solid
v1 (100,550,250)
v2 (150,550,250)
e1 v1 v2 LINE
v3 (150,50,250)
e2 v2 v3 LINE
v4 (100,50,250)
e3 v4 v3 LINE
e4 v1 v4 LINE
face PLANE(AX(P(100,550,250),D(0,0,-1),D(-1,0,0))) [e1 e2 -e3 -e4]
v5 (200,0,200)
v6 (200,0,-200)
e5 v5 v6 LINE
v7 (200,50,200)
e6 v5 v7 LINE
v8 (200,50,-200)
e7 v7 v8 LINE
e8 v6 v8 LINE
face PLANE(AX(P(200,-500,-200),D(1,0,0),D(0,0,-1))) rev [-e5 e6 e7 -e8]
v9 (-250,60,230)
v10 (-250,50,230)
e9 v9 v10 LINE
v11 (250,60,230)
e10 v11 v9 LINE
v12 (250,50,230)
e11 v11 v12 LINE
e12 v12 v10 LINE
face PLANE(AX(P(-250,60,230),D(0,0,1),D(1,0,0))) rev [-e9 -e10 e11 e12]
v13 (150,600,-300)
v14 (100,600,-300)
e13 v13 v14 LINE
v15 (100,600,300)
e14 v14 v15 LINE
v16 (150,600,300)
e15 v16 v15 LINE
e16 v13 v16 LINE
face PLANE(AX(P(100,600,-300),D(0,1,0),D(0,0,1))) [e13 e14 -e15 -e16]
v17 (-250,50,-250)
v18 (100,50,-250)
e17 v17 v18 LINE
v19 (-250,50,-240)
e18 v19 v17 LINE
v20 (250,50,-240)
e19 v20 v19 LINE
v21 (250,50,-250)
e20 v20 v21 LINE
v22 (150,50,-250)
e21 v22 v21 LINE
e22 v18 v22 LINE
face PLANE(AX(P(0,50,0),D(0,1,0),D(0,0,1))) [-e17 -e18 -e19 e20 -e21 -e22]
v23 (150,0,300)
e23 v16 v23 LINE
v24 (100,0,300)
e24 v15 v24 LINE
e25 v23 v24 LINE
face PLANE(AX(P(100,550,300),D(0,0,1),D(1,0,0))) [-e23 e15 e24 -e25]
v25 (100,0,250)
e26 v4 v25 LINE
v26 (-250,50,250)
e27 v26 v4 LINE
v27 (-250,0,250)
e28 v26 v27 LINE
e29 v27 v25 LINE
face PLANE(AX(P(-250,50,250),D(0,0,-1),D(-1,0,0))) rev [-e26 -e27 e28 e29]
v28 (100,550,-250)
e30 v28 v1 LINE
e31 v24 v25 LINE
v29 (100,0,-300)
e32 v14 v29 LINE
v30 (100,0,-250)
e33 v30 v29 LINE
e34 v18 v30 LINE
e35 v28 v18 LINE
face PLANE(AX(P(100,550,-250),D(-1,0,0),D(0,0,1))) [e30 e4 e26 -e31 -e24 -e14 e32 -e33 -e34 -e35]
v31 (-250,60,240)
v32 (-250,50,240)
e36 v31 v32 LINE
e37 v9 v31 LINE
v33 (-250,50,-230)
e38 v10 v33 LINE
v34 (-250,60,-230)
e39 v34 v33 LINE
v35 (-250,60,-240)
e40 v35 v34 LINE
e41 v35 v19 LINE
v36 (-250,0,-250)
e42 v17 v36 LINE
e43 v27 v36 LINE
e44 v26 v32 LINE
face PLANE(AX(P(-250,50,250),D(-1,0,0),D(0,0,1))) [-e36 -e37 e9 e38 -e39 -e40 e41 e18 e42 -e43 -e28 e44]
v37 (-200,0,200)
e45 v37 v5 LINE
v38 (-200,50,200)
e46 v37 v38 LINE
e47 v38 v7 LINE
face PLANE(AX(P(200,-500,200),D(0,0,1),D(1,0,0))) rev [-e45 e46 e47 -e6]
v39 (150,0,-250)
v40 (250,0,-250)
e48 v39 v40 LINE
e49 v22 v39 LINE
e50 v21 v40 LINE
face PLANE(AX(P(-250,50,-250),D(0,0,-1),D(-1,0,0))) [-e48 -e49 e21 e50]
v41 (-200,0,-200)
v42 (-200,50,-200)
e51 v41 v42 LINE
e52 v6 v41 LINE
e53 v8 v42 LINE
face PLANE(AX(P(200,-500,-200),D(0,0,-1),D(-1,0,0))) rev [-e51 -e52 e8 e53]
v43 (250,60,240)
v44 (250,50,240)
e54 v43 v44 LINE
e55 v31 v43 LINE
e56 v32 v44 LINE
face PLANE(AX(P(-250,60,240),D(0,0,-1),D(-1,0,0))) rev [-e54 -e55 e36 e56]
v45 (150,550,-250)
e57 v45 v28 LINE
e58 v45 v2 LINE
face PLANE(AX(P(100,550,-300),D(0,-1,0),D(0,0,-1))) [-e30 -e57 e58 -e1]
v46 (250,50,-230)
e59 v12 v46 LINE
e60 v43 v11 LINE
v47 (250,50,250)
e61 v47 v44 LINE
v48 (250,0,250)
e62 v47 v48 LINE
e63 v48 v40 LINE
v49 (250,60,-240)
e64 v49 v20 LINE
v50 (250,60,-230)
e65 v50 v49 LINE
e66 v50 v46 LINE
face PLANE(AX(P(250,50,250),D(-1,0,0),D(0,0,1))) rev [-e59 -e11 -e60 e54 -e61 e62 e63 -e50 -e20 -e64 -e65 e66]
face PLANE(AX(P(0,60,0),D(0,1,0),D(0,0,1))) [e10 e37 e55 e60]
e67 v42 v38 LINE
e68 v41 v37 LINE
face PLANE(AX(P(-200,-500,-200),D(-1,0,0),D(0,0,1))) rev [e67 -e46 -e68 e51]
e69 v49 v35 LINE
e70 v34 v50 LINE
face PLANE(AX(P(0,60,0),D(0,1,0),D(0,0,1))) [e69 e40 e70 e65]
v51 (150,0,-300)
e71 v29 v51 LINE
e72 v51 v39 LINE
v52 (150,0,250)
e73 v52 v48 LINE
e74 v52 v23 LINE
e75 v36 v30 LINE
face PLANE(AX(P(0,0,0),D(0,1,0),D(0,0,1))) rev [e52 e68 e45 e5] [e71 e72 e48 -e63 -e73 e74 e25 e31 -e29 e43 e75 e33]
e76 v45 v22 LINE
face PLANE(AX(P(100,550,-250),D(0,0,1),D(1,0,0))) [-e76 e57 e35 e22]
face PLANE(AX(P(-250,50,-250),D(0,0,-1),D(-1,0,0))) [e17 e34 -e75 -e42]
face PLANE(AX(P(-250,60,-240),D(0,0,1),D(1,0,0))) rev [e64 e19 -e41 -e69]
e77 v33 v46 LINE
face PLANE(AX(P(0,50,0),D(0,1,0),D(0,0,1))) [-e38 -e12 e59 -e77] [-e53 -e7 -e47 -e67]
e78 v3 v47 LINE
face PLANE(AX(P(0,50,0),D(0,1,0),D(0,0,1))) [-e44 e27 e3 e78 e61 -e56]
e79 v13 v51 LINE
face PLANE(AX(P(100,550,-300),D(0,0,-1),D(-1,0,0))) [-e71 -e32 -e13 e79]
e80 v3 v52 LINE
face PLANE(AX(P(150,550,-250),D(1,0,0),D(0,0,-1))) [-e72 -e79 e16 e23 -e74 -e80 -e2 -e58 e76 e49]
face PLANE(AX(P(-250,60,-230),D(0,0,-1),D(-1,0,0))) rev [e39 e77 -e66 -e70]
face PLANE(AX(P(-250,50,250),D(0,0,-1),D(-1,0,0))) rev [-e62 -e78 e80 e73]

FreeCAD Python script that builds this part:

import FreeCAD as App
import Part
import Sketcher

V = App.Vector
Q = App.Units.Quantity

doc = App.newDocument("Part")
body = doc.addObject("PartDesign::Body", "Body")

# Sketch on XZ plane
sketch1 = doc.addObject("Sketcher::SketchObject", "Sketch")
body.addObject(sketch1)
sketch1.AttachmentSupport = (doc.XZ_Plane, [""])
sketch1.MapMode = "FlatFace"
sketch1.addGeometry(Part.LineSegment(V(-250, -250, 0), V(-250, 250, 0)), False)
sketch1.addGeometry(Part.LineSegment(V(-250, 250, 0), V(250, 250, 0)), False)
sketch1.addGeometry(Part.LineSegment(V(250, 250, 0), V(250, -250, 0)), False)
sketch1.addGeometry(Part.LineSegment(V(250, -250, 0), V(-250, -250, 0)), False)
sketch1.addConstraint(Sketcher.Constraint("Coincident", 0, 2, 1, 1))
sketch1.addConstraint(Sketcher.Constraint("Coincident", 1, 2, 2, 1))
sketch1.addConstraint(Sketcher.Constraint("Coincident", 2, 2, 3, 1))
sketch1.addConstraint(Sketcher.Constraint("Coincident", 3, 2, 0, 1))
sketch1.addConstraint(Sketcher.Constraint("Vertical", 0))
sketch1.addConstraint(Sketcher.Constraint("Horizontal", 1))
sketch1.addConstraint(Sketcher.Constraint("Vertical", 2))
sketch1.addConstraint(Sketcher.Constraint("Horizontal", 3))
sketch1.addConstraint(Sketcher.Constraint("Symmetric", 0, 2, 2, 2, -1, 1))
sketch1.addConstraint(Sketcher.Constraint("Equal", 3, 0))
sketch1.addConstraint(Sketcher.Constraint("DistanceX", 1, 1, 1, 2, Q("500 mm")))
pad1 = doc.addObject("PartDesign::Pad", "Pad")
body.addObject(pad1)
pad1.Profile = sketch1
pad1.Length = 50
pad1.Reversed = True

# Sketch on XZ plane
sketch2 = doc.addObject("Sketcher::SketchObject", "Sketch001")
body.addObject(sketch2)
sketch2.AttachmentSupport = (doc.XZ_Plane, [""])
sketch2.MapMode = "FlatFace"
sketch2.AttachmentOffset = App.Placement(V(0, 0, -50), App.Rotation())
sketch2.addGeometry(Part.LineSegment(V(-200, -200, 0), V(-200, 200, 0)), False)
sketch2.addGeometry(Part.LineSegment(V(-200, 200, 0), V(200, 200, 0)), False)
sketch2.addGeometry(Part.LineSegment(V(200, 200, 0), V(200, -200, 0)), False)
sketch2.addGeometry(Part.LineSegment(V(200, -200, 0), V(-200, -200, 0)), False)
sketch2.addConstraint(Sketcher.Constraint("Coincident", 0, 2, 1, 1))
sketch2.addConstraint(Sketcher.Constraint("Coincident", 1, 2, 2, 1))
sketch2.addConstraint(Sketcher.Constraint("Coincident", 2, 2, 3, 1))
sketch2.addConstraint(Sketcher.Constraint("Coincident", 3, 2, 0, 1))
sketch2.addConstraint(Sketcher.Constraint("Vertical", 0))
sketch2.addConstraint(Sketcher.Constraint("Horizontal", 1))
sketch2.addConstraint(Sketcher.Constraint("Vertical", 2))
sketch2.addConstraint(Sketcher.Constraint("Horizontal", 3))
sketch2.addConstraint(Sketcher.Constraint("Symmetric", 0, 2, 2, 2, -1, 1))
sketch2.addConstraint(Sketcher.Constraint("Equal", 3, 0))
sketch2.addConstraint(Sketcher.Constraint("DistanceX", 1, 1, 1, 2, Q("400 mm")))
pocket1 = doc.addObject("PartDesign::Pocket", "Pocket")
body.addObject(pocket1)
pocket1.Profile = sketch2
pocket1.Length = 550
pocket1.Reversed = True

# Sketch on XZ plane
sketch3 = doc.addObject("Sketcher::SketchObject", "Sketch002")
body.addObject(sketch3)
sketch3.AttachmentSupport = (doc.XZ_Plane, [""])
sketch3.MapMode = "FlatFace"
sketch3.AttachmentOffset = App.Placement(V(0, 0, -50), App.Rotation())
sketch3.addGeometry(Part.LineSegment(V(-250, -240, 0), V(-250, -230, 0)), False)
sketch3.addGeometry(Part.LineSegment(V(-250, -230, 0), V(250, -230, 0)), False)
sketch3.addGeometry(Part.LineSegment(V(250, -230, 0), V(250, -240, 0)), False)
sketch3.addGeometry(Part.LineSegment(V(250, -240, 0), V(-250, -240, 0)), False)
sketch3.addGeometry(Part.LineSegment(V(-250, 230, 0), V(-250, 240, 0)), False)
sketch3.addGeometry(Part.LineSegment(V(-250, 240, 0), V(250, 240, 0)), False)
sketch3.addGeometry(Part.LineSegment(V(250, 240, 0), V(250, 230, 0)), False)
sketch3.addGeometry(Part.LineSegment(V(250, 230, 0), V(-250, 230, 0)), False)
sketch3.addConstraint(Sketcher.Constraint("Coincident", 0, 2, 1, 1))
sketch3.addConstraint(Sketcher.Constraint("Coincident", 1, 2, 2, 1))
sketch3.addConstraint(Sketcher.Constraint("Coincident", 2, 2, 3, 1))
sketch3.addConstraint(Sketcher.Constraint("Coincident", 3, 2, 0, 1))
sketch3.addConstraint(Sketcher.Constraint("Coincident", 4, 2, 5, 1))
sketch3.addConstraint(Sketcher.Constraint("Coincident", 5, 2, 6, 1))
sketch3.addConstraint(Sketcher.Constraint("Coincident", 6, 2, 7, 1))
sketch3.addConstraint(Sketcher.Constraint("Coincident", 7, 2, 4, 1))
sketch3.addConstraint(Sketcher.Constraint("Vertical", 0))
sketch3.addConstraint(Sketcher.Constraint("Horizontal", 1))
sketch3.addConstraint(Sketcher.Constraint("Vertical", 2))
sketch3.addConstraint(Sketcher.Constraint("Horizontal", 3))
sketch3.addConstraint(Sketcher.Constraint("Vertical", 4))
sketch3.addConstraint(Sketcher.Constraint("Horizontal", 5))
sketch3.addConstraint(Sketcher.Constraint("Vertical", 6))
sketch3.addConstraint(Sketcher.Constraint("Horizontal", 7))
sketch3.addConstraint(Sketcher.Constraint("Symmetric", 2, 2, 4, 2, -1, 1))
sketch3.addConstraint(Sketcher.Constraint("Symmetric", 0, 2, 6, 2, -1, 1))
sketch3.addConstraint(Sketcher.Constraint("Vertical", 3, 2, 4, 2))
sketch3.addConstraint(Sketcher.Constraint("DistanceX", 1, 1, 1, 2, Q("500 mm")))
sketch3.addConstraint(Sketcher.Constraint("DistanceY", 0, 1, 0, 2, Q("10 mm")))
sketch3.addConstraint(Sketcher.Constraint("DistanceY", 0, 2, -1, 1, Q("230 mm")))
pad2 = doc.addObject("PartDesign::Pad", "Pad001")
body.addObject(pad2)
pad2.Profile = sketch3
pad2.Length = 10
pad2.Reversed = True

# Sketch on XZ plane
sketch4 = doc.addObject("Sketcher::SketchObject", "Sketch003")
body.addObject(sketch4)
sketch4.AttachmentSupport = (doc.XZ_Plane, [""])
sketch4.MapMode = "FlatFace"
sketch4.addGeometry(Part.LineSegment(V(100, -250, 0), V(100, -300, 0)), False)
sketch4.addGeometry(Part.LineSegment(V(100, -300, 0), V(150, -300, 0)), False)
sketch4.addGeometry(Part.LineSegment(V(150, -300, 0), V(150, -250, 0)), False)
sketch4.addGeometry(Part.LineSegment(V(150, -250, 0), V(100, -250, 0)), False)
sketch4.addGeometry(Part.LineSegment(V(100, 300, 0), V(100, 250, 0)), False)
sketch4.addGeometry(Part.LineSegment(V(100, 250, 0), V(150, 250, 0)), False)
sketch4.addGeometry(Part.LineSegment(V(150, 250, 0), V(150, 300, 0)), False)
sketch4.addGeometry(Part.LineSegment(V(150, 300, 0), V(100, 300, 0)), False)
sketch4.addConstraint(Sketcher.Constraint("Coincident", 0, 2, 1, 1))
sketch4.addConstraint(Sketcher.Constraint("Coincident", 1, 2, 2, 1))
sketch4.addConstraint(Sketcher.Constraint("Coincident", 2, 2, 3, 1))
sketch4.addConstraint(Sketcher.Constraint("Coincident", 3, 2, 0, 1))
sketch4.addConstraint(Sketcher.Constraint("Coincident", 4, 2, 5, 1))
sketch4.addConstraint(Sketcher.Constraint("Coincident", 5, 2, 6, 1))
sketch4.addConstraint(Sketcher.Constraint("Coincident", 6, 2, 7, 1))
sketch4.addConstraint(Sketcher.Constraint("Coincident", 7, 2, 4, 1))
sketch4.addConstraint(Sketcher.Constraint("Vertical", 0))
sketch4.addConstraint(Sketcher.Constraint("Horizontal", 1))
sketch4.addConstraint(Sketcher.Constraint("Vertical", 2))
sketch4.addConstraint(Sketcher.Constraint("Horizontal", 3))
sketch4.addConstraint(Sketcher.Constraint("Vertical", 4))
sketch4.addConstraint(Sketcher.Constraint("Horizontal", 5))
sketch4.addConstraint(Sketcher.Constraint("Vertical", 6))
sketch4.addConstraint(Sketcher.Constraint("Horizontal", 7))
sketch4.addConstraint(Sketcher.Constraint("Symmetric", 3, 2, 4, 2, -1))
sketch4.addConstraint(Sketcher.Constraint("Symmetric", 1, 2, 6, 2, -1))
sketch4.addConstraint(Sketcher.Constraint("Equal", 7, 0))
sketch4.addConstraint(Sketcher.Constraint("DistanceX", 1, 1, 1, 2, Q("50 mm")))
sketch4.addConstraint(Sketcher.Constraint("DistanceX", -1, 1, 0, 2, Q("100 mm")))
sketch4.addConstraint(Sketcher.Constraint("DistanceY", 0, 2, -1, 1, Q("300 mm")))
pad3 = doc.addObject("PartDesign::Pad", "Pad002")
body.addObject(pad3)
pad3.Profile = sketch4
pad3.Length = 550
pad3.Reversed = True

# Sketch on XY plane
sketch5 = doc.addObject("Sketcher::SketchObject", "Sketch004")
body.addObject(sketch5)
sketch5.AttachmentSupport = (doc.XY_Plane, [""])
sketch5.MapMode = "FlatFace"
sketch5.AttachmentOffset = App.Placement(V(0, 0, 300), App.Rotation())
sketch5.addGeometry(Part.LineSegment(V(100, 600, 0), V(100, 550, 0)), False)
sketch5.addGeometry(Part.LineSegment(V(100, 550, 0), V(150, 550, 0)), False)
sketch5.addGeometry(Part.LineSegment(V(150, 550, 0), V(150, 600, 0)), False)
sketch5.addGeometry(Part.LineSegment(V(150, 600, 0), V(100, 600, 0)), False)
sketch5.addConstraint(Sketcher.Constraint("Coincident", 0, 2, 1, 1))
sketch5.addConstraint(Sketcher.Constraint("Coincident", 1, 2, 2, 1))
sketch5.addConstraint(Sketcher.Constraint("Coincident", 2, 2, 3, 1))
sketch5.addConstraint(Sketcher.Constraint("Coincident", 3, 2, 0, 1))
sketch5.addConstraint(Sketcher.Constraint("Vertical", 0))
sketch5.addConstraint(Sketcher.Constraint("Horizontal", 1))
sketch5.addConstraint(Sketcher.Constraint("Vertical", 2))
sketch5.addConstraint(Sketcher.Constraint("Horizontal", 3))
sketch5.addConstraint(Sketcher.Constraint("Equal", 3, 0))
sketch5.addConstraint(Sketcher.Constraint("DistanceX", 1, 1, 1, 2, Q("50 mm")))
sketch5.addConstraint(Sketcher.Constraint("DistanceX", -1, 1, 0, 2, Q("100 mm")))
sketch5.addConstraint(Sketcher.Constraint("DistanceY", -1, 1, 0, 2, Q("550 mm")))
pad4 = doc.addObject("PartDesign::Pad", "Pad003")
body.addObject(pad4)
pad4.Profile = sketch5
pad4.Length = 600
pad4.Reversed = True

doc.recompute()
